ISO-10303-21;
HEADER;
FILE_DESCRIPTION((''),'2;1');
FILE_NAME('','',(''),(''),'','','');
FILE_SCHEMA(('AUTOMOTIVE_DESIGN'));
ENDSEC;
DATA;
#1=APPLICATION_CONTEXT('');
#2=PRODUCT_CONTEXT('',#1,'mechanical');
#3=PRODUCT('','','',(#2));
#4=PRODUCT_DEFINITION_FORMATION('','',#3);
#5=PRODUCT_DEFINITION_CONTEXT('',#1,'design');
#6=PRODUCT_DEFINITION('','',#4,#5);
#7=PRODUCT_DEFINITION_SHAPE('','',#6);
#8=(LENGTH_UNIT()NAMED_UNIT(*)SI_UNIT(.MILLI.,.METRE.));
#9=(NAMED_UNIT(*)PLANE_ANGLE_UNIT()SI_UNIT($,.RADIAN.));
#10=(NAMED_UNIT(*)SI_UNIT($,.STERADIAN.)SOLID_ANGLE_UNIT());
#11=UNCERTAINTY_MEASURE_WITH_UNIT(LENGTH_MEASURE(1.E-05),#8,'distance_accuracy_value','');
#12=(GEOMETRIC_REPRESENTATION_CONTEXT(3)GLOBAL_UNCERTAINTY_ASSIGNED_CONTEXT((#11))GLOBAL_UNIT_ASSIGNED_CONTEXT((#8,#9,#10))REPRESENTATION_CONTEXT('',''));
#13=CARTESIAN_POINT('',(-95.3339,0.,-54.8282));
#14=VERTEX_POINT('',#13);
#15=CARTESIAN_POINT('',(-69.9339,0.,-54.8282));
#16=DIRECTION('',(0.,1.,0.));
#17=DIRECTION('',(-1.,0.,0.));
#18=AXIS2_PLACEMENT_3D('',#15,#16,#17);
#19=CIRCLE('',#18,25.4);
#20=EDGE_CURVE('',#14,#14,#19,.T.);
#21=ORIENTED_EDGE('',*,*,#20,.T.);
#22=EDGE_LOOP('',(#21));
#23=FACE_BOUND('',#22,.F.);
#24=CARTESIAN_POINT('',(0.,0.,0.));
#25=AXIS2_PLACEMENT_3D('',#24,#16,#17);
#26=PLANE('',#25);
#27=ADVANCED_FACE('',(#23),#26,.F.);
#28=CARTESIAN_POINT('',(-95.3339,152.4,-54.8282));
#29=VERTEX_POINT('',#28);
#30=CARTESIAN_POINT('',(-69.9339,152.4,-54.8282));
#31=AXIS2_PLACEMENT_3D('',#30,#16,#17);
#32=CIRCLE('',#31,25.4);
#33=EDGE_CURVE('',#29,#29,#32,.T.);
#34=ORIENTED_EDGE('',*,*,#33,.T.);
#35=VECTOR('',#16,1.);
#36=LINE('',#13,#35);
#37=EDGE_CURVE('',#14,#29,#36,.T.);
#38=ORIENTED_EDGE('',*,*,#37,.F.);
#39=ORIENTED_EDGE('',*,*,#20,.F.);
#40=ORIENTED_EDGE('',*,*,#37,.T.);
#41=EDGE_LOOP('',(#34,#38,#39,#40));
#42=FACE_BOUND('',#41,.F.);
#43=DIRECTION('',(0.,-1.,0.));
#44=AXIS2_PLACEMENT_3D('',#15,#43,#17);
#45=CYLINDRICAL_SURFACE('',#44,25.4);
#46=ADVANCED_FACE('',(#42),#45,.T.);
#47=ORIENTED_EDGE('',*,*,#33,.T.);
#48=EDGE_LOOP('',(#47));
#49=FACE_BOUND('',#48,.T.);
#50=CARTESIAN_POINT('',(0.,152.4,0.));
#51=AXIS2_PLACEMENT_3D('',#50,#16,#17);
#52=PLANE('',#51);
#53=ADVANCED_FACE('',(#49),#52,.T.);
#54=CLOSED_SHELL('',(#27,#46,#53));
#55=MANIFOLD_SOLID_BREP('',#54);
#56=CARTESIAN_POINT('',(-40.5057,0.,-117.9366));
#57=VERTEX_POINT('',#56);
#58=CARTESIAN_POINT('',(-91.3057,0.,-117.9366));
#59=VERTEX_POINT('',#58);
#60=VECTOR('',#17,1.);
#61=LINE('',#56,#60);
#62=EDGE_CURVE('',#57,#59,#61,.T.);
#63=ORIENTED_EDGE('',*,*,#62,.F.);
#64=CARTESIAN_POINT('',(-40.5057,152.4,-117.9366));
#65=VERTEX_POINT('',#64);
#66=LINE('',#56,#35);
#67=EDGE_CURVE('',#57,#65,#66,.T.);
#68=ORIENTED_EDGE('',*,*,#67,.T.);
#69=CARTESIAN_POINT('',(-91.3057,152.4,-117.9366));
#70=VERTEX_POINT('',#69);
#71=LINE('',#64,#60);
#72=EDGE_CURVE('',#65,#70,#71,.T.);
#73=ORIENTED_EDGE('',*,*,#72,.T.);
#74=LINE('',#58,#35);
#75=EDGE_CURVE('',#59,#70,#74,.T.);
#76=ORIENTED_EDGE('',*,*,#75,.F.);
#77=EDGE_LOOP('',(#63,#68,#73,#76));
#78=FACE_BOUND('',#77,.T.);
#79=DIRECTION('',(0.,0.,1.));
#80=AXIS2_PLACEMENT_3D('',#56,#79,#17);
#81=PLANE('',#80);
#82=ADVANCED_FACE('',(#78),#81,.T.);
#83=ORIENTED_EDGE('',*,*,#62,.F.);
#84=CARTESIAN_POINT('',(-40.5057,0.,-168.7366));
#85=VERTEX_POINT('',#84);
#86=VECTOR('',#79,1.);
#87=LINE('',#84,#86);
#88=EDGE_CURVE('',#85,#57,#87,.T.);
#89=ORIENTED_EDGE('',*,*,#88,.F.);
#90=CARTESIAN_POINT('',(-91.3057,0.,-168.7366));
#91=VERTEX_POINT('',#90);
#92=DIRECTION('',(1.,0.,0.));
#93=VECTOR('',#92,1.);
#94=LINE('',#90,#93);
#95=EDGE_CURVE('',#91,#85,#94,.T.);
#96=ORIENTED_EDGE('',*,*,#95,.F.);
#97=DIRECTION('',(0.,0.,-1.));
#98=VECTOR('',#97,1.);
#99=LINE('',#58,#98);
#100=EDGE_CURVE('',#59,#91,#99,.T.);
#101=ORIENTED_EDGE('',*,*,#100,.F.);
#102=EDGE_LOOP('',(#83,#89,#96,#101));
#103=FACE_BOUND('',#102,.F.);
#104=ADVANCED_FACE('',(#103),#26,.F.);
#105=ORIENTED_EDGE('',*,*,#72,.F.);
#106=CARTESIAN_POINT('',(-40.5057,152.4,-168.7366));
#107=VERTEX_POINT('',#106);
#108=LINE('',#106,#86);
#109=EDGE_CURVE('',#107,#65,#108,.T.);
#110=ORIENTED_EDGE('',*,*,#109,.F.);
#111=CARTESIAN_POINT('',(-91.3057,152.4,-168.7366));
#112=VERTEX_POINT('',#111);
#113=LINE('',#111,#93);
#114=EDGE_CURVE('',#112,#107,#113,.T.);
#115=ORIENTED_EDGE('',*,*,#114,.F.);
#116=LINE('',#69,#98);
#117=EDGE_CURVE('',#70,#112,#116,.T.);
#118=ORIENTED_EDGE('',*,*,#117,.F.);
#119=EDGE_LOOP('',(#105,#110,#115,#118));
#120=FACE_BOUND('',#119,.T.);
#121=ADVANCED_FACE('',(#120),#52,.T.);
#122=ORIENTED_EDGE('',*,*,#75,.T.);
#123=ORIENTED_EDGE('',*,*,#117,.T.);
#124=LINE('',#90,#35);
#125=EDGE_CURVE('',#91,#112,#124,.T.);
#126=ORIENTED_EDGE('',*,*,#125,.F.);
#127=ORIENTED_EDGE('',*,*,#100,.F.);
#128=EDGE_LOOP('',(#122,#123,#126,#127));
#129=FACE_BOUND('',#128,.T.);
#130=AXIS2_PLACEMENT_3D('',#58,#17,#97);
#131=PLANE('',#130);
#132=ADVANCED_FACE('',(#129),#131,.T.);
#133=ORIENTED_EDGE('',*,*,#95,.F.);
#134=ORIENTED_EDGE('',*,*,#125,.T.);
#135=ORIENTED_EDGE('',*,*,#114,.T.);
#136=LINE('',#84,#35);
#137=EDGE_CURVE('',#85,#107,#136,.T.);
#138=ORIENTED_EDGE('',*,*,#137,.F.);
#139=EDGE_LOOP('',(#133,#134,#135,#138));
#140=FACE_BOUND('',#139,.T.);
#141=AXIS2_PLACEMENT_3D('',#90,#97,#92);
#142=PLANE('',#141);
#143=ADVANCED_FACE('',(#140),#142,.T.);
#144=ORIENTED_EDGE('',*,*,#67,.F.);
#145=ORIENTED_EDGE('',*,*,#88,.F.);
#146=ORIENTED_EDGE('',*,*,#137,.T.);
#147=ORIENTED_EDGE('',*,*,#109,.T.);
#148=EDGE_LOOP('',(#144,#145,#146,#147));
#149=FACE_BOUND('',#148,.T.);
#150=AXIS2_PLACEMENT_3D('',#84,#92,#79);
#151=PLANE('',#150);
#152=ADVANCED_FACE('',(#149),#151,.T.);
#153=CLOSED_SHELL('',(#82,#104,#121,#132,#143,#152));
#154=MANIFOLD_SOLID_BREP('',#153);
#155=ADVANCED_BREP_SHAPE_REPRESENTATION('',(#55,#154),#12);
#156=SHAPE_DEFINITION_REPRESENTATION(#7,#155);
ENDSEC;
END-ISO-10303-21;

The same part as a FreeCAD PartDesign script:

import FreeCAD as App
import Part
import Sketcher

V = App.Vector
Q = App.Units.Quantity

doc = App.newDocument("Part")
params = doc.addObject("Spreadsheet::Sheet", "Params")
for row, (alias, value) in enumerate([
    ("sketch1_diameter", "2 in"),
    ("sketch1_width", "2 in"),
    ("pad1_length", "6 in"),
], start=1):
    params.set(f"A{row}", alias)
    params.set(f"B{row}", "=" + value)
    params.setAlias(f"B{row}", alias)

body = doc.addObject("PartDesign::Body", "Body")
body.AllowCompound = True

sketch1 = body.newObject("Sketcher::SketchObject", "Sketch")
sketch1.AttachmentSupport = (doc.getObject("XZ_Plane"), [""])
sketch1.MapMode = "FlatFace"
sketch1.addGeometry([
    Part.LineSegment(V(-91.3057, -117.9366, 0), V(-40.5057, -117.9366, 0)),
    Part.LineSegment(V(-40.5057, -117.9366, 0), V(-40.5057, -168.7366, 0)),
    Part.LineSegment(V(-40.5057, -168.7366, 0), V(-91.3057, -168.7366, 0)),
    Part.LineSegment(V(-91.3057, -168.7366, 0), V(-91.3057, -117.9366, 0)),
    Part.Circle(V(-69.9339, -54.8282, 0), V(0, 0, 1), 25.4),
], False)
sketch1.addConstraint([
    Sketcher.Constraint("Coincident", 0, 2, 1, 1),
    Sketcher.Constraint("Coincident", 1, 2, 2, 1),
    Sketcher.Constraint("Coincident", 2, 2, 3, 1),
    Sketcher.Constraint("Coincident", 3, 2, 0, 1),
    Sketcher.Constraint("Horizontal", 0),
    Sketcher.Constraint("Vertical", 1),
    Sketcher.Constraint("Horizontal", 2),
    Sketcher.Constraint("Vertical", 3),
    Sketcher.Constraint("Equal", 2, 1),
    Sketcher.Constraint("Diameter", 4, Q("2 in")),
    Sketcher.Constraint("DistanceX", 0, 1, 0, 2, Q("2 in")),
    Sketcher.Constraint("DistanceX", 4, 3, -1, 1, Q("2.7533 in")),
    Sketcher.Constraint("DistanceY", 4, 3, -1, 1, Q("2.1586 in")),
    Sketcher.Constraint("DistanceX", 4, 3, 0, 2, Q("1.1586 in")),
    Sketcher.Constraint("DistanceY", 0, 2, -1, 1, 117.9366),
])
sketch1.setExpression("Constraints[9]", "Params.sketch1_diameter")
sketch1.setExpression("Constraints[10]", "Params.sketch1_width")
pad1 = body.newObject("PartDesign::Pad", "Pad")
pad1.Profile = sketch1
pad1.setExpression("Length", "Params.pad1_length")
pad1.Reversed = True

doc.recompute()
